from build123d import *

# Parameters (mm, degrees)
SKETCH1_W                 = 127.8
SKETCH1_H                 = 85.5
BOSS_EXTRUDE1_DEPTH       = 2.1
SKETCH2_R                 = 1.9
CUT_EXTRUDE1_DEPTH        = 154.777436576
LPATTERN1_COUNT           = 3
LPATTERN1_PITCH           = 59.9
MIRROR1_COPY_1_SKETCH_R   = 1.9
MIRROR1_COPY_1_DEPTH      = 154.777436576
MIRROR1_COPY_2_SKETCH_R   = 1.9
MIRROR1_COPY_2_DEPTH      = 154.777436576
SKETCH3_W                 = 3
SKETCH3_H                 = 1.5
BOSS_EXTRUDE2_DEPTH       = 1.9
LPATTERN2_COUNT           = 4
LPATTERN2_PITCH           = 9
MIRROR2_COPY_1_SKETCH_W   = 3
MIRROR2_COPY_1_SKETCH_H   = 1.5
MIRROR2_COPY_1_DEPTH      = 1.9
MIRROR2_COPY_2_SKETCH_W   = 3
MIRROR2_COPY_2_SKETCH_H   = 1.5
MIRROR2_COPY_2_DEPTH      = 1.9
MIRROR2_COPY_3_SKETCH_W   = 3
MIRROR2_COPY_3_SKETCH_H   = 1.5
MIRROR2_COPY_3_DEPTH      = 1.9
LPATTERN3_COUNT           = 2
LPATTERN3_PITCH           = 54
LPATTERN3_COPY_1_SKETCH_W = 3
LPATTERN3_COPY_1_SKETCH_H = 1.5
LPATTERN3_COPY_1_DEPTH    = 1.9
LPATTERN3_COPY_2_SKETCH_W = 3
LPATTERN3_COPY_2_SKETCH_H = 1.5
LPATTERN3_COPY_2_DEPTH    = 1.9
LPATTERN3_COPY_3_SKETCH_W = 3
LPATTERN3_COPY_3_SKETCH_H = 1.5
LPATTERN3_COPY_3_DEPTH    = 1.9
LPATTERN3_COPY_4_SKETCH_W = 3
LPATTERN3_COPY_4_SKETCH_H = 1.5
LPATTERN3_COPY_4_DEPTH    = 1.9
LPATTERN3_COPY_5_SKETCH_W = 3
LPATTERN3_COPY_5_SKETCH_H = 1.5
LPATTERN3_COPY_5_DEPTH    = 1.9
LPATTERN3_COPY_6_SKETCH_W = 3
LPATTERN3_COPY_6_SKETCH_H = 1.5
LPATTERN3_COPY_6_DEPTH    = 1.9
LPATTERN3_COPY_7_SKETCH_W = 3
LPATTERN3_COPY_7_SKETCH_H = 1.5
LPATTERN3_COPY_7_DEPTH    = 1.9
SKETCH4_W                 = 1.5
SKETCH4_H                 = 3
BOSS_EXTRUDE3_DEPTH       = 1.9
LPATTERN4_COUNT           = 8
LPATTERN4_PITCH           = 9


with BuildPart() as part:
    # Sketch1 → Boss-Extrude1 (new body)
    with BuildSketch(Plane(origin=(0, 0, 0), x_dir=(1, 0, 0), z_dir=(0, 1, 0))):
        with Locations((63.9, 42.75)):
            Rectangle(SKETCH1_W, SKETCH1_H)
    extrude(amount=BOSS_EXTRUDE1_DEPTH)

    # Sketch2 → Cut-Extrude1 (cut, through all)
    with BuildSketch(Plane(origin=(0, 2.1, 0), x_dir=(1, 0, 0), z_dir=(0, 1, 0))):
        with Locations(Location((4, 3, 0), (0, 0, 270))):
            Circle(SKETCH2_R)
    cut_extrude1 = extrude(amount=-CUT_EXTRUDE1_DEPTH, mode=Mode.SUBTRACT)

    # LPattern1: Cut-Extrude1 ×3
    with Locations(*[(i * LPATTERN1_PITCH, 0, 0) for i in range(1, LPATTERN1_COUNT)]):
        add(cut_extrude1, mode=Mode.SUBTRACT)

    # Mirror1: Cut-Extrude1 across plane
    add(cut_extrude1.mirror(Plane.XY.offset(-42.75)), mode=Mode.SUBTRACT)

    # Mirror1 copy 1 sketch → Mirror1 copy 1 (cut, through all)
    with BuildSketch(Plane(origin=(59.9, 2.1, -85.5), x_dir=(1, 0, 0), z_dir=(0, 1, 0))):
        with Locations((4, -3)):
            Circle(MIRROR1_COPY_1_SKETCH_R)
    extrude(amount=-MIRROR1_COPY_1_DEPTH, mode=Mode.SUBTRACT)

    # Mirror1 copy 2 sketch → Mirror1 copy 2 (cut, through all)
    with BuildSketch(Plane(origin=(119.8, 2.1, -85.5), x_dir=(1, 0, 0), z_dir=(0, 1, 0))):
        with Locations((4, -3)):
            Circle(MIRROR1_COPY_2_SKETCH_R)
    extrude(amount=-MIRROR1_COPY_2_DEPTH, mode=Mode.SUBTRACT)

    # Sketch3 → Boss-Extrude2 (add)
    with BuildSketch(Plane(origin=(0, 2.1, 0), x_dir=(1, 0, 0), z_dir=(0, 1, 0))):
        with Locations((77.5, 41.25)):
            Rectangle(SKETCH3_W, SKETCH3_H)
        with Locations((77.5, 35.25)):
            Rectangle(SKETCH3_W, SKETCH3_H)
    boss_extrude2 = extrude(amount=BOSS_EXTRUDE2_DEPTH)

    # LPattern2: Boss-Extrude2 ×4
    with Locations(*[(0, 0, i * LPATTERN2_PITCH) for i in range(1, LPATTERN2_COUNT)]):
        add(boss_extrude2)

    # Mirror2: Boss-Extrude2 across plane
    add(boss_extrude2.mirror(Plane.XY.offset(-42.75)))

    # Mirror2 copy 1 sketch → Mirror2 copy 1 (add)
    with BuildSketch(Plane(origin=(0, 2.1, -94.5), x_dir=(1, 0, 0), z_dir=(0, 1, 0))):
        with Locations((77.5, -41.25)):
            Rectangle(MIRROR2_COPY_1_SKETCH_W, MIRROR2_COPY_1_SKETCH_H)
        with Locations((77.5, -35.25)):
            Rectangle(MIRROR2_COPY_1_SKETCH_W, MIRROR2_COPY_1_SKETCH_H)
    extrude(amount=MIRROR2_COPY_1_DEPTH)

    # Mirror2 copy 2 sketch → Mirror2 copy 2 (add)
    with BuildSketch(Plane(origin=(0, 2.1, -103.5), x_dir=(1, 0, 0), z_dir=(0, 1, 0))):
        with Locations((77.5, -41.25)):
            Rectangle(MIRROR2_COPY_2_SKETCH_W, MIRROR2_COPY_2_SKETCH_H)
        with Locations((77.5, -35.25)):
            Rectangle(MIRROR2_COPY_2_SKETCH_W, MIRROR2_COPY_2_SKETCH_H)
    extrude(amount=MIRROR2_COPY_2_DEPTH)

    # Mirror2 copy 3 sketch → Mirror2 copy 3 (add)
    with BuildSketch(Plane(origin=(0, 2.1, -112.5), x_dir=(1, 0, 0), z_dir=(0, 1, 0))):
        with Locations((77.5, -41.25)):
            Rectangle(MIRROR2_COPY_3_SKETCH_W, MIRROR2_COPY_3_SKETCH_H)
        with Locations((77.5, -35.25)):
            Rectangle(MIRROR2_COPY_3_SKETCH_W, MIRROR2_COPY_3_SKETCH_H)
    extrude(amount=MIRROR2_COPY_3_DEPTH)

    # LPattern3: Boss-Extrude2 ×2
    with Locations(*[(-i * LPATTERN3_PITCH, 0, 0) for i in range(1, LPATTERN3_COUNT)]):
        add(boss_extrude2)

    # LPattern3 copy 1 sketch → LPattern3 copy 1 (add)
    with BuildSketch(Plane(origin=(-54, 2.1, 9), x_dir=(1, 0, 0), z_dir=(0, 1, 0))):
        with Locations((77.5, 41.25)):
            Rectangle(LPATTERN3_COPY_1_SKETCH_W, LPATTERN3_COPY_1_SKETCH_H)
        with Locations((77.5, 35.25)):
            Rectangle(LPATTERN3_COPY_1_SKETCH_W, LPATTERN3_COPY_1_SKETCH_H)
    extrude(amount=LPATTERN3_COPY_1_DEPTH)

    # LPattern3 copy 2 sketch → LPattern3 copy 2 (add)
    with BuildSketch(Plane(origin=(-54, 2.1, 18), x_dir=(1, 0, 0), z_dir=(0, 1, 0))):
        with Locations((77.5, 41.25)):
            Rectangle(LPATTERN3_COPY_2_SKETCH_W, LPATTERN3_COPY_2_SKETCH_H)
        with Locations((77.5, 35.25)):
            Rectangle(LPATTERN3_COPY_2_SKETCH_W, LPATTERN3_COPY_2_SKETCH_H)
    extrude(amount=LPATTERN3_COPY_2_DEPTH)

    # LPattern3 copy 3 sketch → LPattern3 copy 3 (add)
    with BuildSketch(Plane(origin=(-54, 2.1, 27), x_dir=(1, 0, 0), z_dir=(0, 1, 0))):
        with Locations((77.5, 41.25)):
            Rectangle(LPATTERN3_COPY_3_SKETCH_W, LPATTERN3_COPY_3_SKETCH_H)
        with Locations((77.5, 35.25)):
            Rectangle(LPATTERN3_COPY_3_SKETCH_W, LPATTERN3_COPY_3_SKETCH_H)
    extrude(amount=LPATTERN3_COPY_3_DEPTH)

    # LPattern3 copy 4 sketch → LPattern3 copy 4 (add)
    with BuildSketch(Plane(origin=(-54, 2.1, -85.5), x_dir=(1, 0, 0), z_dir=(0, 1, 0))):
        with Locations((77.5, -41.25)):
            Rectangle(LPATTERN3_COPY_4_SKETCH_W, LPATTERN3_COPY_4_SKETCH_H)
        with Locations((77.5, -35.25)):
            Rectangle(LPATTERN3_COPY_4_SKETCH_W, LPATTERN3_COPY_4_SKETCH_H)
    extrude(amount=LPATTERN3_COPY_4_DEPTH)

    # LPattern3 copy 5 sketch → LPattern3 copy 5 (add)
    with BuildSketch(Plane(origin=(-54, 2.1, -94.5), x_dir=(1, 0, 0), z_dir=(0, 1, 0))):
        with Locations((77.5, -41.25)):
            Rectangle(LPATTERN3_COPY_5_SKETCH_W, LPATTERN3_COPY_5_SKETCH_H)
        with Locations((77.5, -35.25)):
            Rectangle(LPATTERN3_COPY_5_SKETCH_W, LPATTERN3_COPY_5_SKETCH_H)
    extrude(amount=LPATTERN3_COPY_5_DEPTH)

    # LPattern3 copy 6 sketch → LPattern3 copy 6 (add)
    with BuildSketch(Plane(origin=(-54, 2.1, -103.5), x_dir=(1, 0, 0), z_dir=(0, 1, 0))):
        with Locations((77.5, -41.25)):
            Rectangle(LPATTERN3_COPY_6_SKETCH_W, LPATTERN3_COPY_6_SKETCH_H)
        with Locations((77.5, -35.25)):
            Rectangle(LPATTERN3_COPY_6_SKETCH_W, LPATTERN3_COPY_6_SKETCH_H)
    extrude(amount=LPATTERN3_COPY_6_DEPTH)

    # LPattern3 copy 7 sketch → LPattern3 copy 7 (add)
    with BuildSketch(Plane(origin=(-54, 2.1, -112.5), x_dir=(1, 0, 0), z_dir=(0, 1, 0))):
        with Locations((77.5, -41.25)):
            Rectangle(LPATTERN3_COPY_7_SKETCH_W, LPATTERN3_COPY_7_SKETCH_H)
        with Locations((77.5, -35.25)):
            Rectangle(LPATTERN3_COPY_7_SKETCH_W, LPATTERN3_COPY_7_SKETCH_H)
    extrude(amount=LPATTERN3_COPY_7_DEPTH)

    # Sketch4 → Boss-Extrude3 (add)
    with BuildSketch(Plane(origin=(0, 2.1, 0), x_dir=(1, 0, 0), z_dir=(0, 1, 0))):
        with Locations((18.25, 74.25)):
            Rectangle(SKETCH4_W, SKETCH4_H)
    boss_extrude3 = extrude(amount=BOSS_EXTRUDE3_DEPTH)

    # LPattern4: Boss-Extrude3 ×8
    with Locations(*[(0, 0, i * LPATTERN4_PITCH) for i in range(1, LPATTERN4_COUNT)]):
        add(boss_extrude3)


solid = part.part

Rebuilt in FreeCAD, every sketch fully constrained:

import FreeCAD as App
import Part
import Sketcher


def add_polygon(sketch, points):
    """Adds a closed chain of lines whose ends are joined by coincident constraints."""
    first, n = sketch.GeometryCount, len(points)
    for a, b in zip(points, points[1:] + points[:1]):
        sketch.addGeometry(Part.LineSegment(App.Vector(*a, 0), App.Vector(*b, 0)), False)
    for i in range(n):
        sketch.addConstraint(Sketcher.Constraint("Coincident", first + i, 2, first + (i + 1) % n, 1))

doc = App.newDocument("Part")
body = doc.addObject("PartDesign::Body", "Body")

# Sketch on XZ plane
sketch1 = body.newObject("Sketcher::SketchObject", "Sketch")
sketch1.AttachmentSupport = (doc.getObject("XZ_Plane"), [""])
sketch1.MapMode = "FlatFace"
add_polygon(sketch1, [(0, -86), (0, 0), (128, 0), (128, -86)])  # lines 0-3
sketch1.addConstraint([
    Sketcher.Constraint("Vertical", 0),
    Sketcher.Constraint("Horizontal", 1),
    Sketcher.Constraint("Vertical", 2),
    Sketcher.Constraint("Horizontal", 3),
    Sketcher.Constraint("Coincident", 0, 2, -1, 1),
    Sketcher.Constraint("DistanceX", 1, 1, 1, 2, 127.8),
    Sketcher.Constraint("DistanceY", 0, 1, 0, 2, 85.5),
])
pad1 = body.newObject("PartDesign::Pad", "Pad")
pad1.Profile = sketch1
pad1.Length = 2.1
pad1.Reversed = True

# Sketch on XZ plane
sketch2 = body.newObject("Sketcher::SketchObject", "Sketch001")
sketch2.AttachmentSupport = (doc.getObject("XZ_Plane"), [""])
sketch2.MapMode = "FlatFace"
sketch2.AttachmentOffset = App.Placement(App.Vector(0, 0, -2.1), App.Rotation())
sketch2.addGeometry(Part.Circle(App.Vector(4, -3, 0), App.Vector(0, 0, 1), 1.9), False)
sketch2.addConstraint([
    Sketcher.Constraint("Diameter", 0, 3.8),
    Sketcher.Constraint("DistanceX", -1, 1, 0, 3, 4.0),
    Sketcher.Constraint("DistanceY", 0, 3, -1, 1, 3.0),
])
pocket1 = body.newObject("PartDesign::Pocket", "Pocket")
pocket1.Profile = sketch2
pocket1.Type = "ThroughAll"
pocket1.Reversed = True
doc.recompute()

linearpattern = body.newObject("PartDesign::LinearPattern", "LinearPattern")
linearpattern.Originals = [pocket1]
linearpattern.Direction = (doc.getObject("X_Axis"), [""])
linearpattern.Mode = "offset"
linearpattern.Offset = 59.9
linearpattern.Occurrences = 3
body.Tip = linearpattern
doc.recompute()

datumplane = body.newObject("PartDesign::Plane", "DatumPlane")
datumplane.AttachmentSupport = (doc.getObject("XY_Plane"), [""])
datumplane.MapMode = "FlatFace"
datumplane.AttachmentOffset = App.Placement(App.Vector(0, 0, -42.75), App.Rotation())
mirrored = body.newObject("PartDesign::Mirrored", "Mirrored")
mirrored.Originals = [pocket1]
mirrored.MirrorPlane = (datumplane, [""])
body.Tip = mirrored

# Sketch on XZ plane
sketch3 = body.newObject("Sketcher::SketchObject", "Sketch002")
sketch3.AttachmentSupport = (doc.getObject("XZ_Plane"), [""])
sketch3.MapMode = "FlatFace"
sketch3.AttachmentOffset = App.Placement(App.Vector(0, 0, -2.1), App.Rotation())
sketch3.addGeometry(Part.Circle(App.Vector(63.9, -82.5, 0), App.Vector(0, 0, 1), 1.9), False)
sketch3.addConstraint([
    Sketcher.Constraint("Diameter", 0, 3.8),
    Sketcher.Constraint("DistanceX", -1, 1, 0, 3, 63.9),
    Sketcher.Constraint("DistanceY", 0, 3, -1, 1, 82.5),
])
pocket2 = body.newObject("PartDesign::Pocket", "Pocket001")
pocket2.Profile = sketch3
pocket2.Type = "ThroughAll"
pocket2.Reversed = True

# Sketch on XZ plane
sketch4 = body.newObject("Sketcher::SketchObject", "Sketch003")
sketch4.AttachmentSupport = (doc.getObject("XZ_Plane"), [""])
sketch4.MapMode = "FlatFace"
sketch4.AttachmentOffset = App.Placement(App.Vector(0, 0, -2.1), App.Rotation())
sketch4.addGeometry(Part.Circle(App.Vector(123.8, -82.5, 0), App.Vector(0, 0, 1), 1.9), False)
sketch4.addConstraint([
    Sketcher.Constraint("Diameter", 0, 3.8),
    Sketcher.Constraint("DistanceX", -1, 1, 0, 3, 123.8),
    Sketcher.Constraint("DistanceY", 0, 3, -1, 1, 82.5),
])
pocket3 = body.newObject("PartDesign::Pocket", "Pocket002")
pocket3.Profile = sketch4
pocket3.Type = "ThroughAll"
pocket3.Reversed = True

# Sketch on XZ plane
sketch5 = body.newObject("Sketcher::SketchObject", "Sketch004")
sketch5.AttachmentSupport = (doc.getObject("XZ_Plane"), [""])
sketch5.MapMode = "FlatFace"
sketch5.AttachmentOffset = App.Placement(App.Vector(0, 0, -2.1), App.Rotation())
add_polygon(sketch5, [(76, -42), (76, -40.5), (79, -40.5), (79, -42)])  # lines 0-3
add_polygon(sketch5, [(76, -36), (76, -34.5), (79, -34.5), (79, -36)])  # lines 4-7
sketch5.addConstraint([
    Sketcher.Constraint("Vertical", 0),
    Sketcher.Constraint("Horizontal", 1),
    Sketcher.Constraint("Vertical", 2),
    Sketcher.Constraint("Horizontal", 3),
    Sketcher.Constraint("Vertical", 4),
    Sketcher.Constraint("Horizontal", 5),
    Sketcher.Constraint("Vertical", 6),
    Sketcher.Constraint("Horizontal", 7),
    Sketcher.Constraint("Vertical", 3, 2, 4, 2),
    Sketcher.Constraint("Vertical", 2, 2, 5, 2),
    Sketcher.Constraint("Equal", 2, 4),
    Sketcher.Constraint("DistanceX", 1, 1, 1, 2, 3.0),
    Sketcher.Constraint("DistanceY", 0, 1, 0, 2, 1.5),
    Sketcher.Constraint("DistanceX", -1, 1, 0, 2, 76.0),
    Sketcher.Constraint("DistanceY", 2, 2, -1, 1, 42.0),
    Sketcher.Constraint("DistanceY", 6, 2, -1, 1, 36.0),
])
pad2 = body.newObject("PartDesign::Pad", "Pad001")
pad2.Profile = sketch5
pad2.Length = 1.9
pad2.Reversed = True
doc.recompute()

linearpattern2 = body.newObject("PartDesign::LinearPattern", "LinearPattern001")
linearpattern2.Originals = [pad2]
linearpattern2.Direction = (doc.getObject("Z_Axis"), [""])
linearpattern2.Mode = "offset"
linearpattern2.Offset = 9
linearpattern2.Occurrences = 4
body.Tip = linearpattern2
doc.recompute()

datumplane2 = body.newObject("PartDesign::Plane", "DatumPlane001")
datumplane2.AttachmentSupport = (doc.getObject("XY_Plane"), [""])
datumplane2.MapMode = "FlatFace"
datumplane2.AttachmentOffset = App.Placement(App.Vector(0, 0, -42.75), App.Rotation())
mirrored2 = body.newObject("PartDesign::Mirrored", "Mirrored001")
mirrored2.Originals = [pad2]
mirrored2.MirrorPlane = (datumplane2, [""])
body.Tip = mirrored2

# Sketch on XZ plane
sketch6 = body.newObject("Sketcher::SketchObject", "Sketch005")
sketch6.AttachmentSupport = (doc.getObject("XZ_Plane"), [""])
sketch6.MapMode = "FlatFace"
sketch6.AttachmentOffset = App.Placement(App.Vector(0, 0, -2.1), App.Rotation())
add_polygon(sketch6, [(76, -54), (76, -52.5), (79, -52.5), (79, -54)])  # lines 0-3
add_polygon(sketch6, [(76, -60), (76, -58.5), (79, -58.5), (79, -60)])  # lines 4-7
sketch6.addConstraint([
    Sketcher.Constraint("Vertical", 0),
    Sketcher.Constraint("Horizontal", 1),
    Sketcher.Constraint("Vertical", 2),
    Sketcher.Constraint("Horizontal", 3),
    Sketcher.Constraint("Vertical", 4),
    Sketcher.Constraint("Horizontal", 5),
    Sketcher.Constraint("Vertical", 6),
    Sketcher.Constraint("Horizontal", 7),
    Sketcher.Constraint("Vertical", 3, 2, 4, 2),
    Sketcher.Constraint("Vertical", 2, 2, 5, 2),
    Sketcher.Constraint("Equal", 2, 4),
    Sketcher.Constraint("DistanceX", 1, 1, 1, 2, 3.0),
    Sketcher.Constraint("DistanceY", 0, 1, 0, 2, 1.5),
    Sketcher.Constraint("DistanceX", -1, 1, 0, 2, 76.0),
    Sketcher.Constraint("DistanceY", 2, 2, -1, 1, 54.0),
    Sketcher.Constraint("DistanceY", 6, 2, -1, 1, 60.0),
])
pad3 = body.newObject("PartDesign::Pad", "Pad002")
pad3.Profile = sketch6
pad3.Length = 1.9
pad3.Reversed = True

# Sketch on XZ plane
sketch7 = body.newObject("Sketcher::SketchObject", "Sketch006")
sketch7.AttachmentSupport = (doc.getObject("XZ_Plane"), [""])
sketch7.MapMode = "FlatFace"
sketch7.AttachmentOffset = App.Placement(App.Vector(0, 0, -2.1), App.Rotation())
add_polygon(sketch7, [(76, -63), (76, -61.5), (79, -61.5), (79, -63)])  # lines 0-3
add_polygon(sketch7, [(76, -69), (76, -67.5), (79, -67.5), (79, -69)])  # lines 4-7
sketch7.addConstraint([
    Sketcher.Constraint("Vertical", 0),
    Sketcher.Constraint("Horizontal", 1),
    Sketcher.Constraint("Vertical", 2),
    Sketcher.Constraint("Horizontal", 3),
    Sketcher.Constraint("Vertical", 4),
    Sketcher.Constraint("Horizontal", 5),
    Sketcher.Constraint("Vertical", 6),
    Sketcher.Constraint("Horizontal", 7),
    Sketcher.Constraint("Vertical", 3, 2, 4, 2),
    Sketcher.Constraint("Vertical", 2, 2, 5, 2),
    Sketcher.Constraint("Equal", 2, 4),
    Sketcher.Constraint("DistanceX", 1, 1, 1, 2, 3.0),
    Sketcher.Constraint("DistanceY", 0, 1, 0, 2, 1.5),
    Sketcher.Constraint("DistanceX", -1, 1, 0, 2, 76.0),
    Sketcher.Constraint("DistanceY", 2, 2, -1, 1, 63.0),
    Sketcher.Constraint("DistanceY", 6, 2, -1, 1, 69.0),
])
pad4 = body.newObject("PartDesign::Pad", "Pad003")
pad4.Profile = sketch7
pad4.Length = 1.9
pad4.Reversed = True

# Sketch on XZ plane
sketch8 = body.newObject("Sketcher::SketchObject", "Sketch007")
sketch8.AttachmentSupport = (doc.getObject("XZ_Plane"), [""])
sketch8.MapMode = "FlatFace"
sketch8.AttachmentOffset = App.Placement(App.Vector(0, 0, -2.1), App.Rotation())
add_polygon(sketch8, [(76, -72), (76, -70.5), (79, -70.5), (79, -72)])  # lines 0-3
add_polygon(sketch8, [(76, -78), (76, -76.5), (79, -76.5), (79, -78)])  # lines 4-7
sketch8.addConstraint([
    Sketcher.Constraint("Vertical", 0),
    Sketcher.Constraint("Horizontal", 1),
    Sketcher.Constraint("Vertical", 2),
    Sketcher.Constraint("Horizontal", 3),
    Sketcher.Constraint("Vertical", 4),
    Sketcher.Constraint("Horizontal", 5),
    Sketcher.Constraint("Vertical", 6),
    Sketcher.Constraint("Horizontal", 7),
    Sketcher.Constraint("Vertical", 3, 2, 4, 2),
    Sketcher.Constraint("Vertical", 2, 2, 5, 2),
    Sketcher.Constraint("Equal", 2, 4),
    Sketcher.Constraint("DistanceX", 1, 1, 1, 2, 3.0),
    Sketcher.Constraint("DistanceY", 0, 1, 0, 2, 1.5),
    Sketcher.Constraint("DistanceX", -1, 1, 0, 2, 76.0),
    Sketcher.Constraint("DistanceY", 2, 2, -1, 1, 72.0),
    Sketcher.Constraint("DistanceY", 6, 2, -1, 1, 78.0),
])
pad5 = body.newObject("PartDesign::Pad", "Pad004")
pad5.Profile = sketch8
pad5.Length = 1.9
pad5.Reversed = True
doc.recompute()

linearpattern3 = body.newObject("PartDesign::LinearPattern", "LinearPattern002")
linearpattern3.Originals = [pad2]
linearpattern3.Direction = (doc.getObject("X_Axis"), [""])
linearpattern3.Mode = "offset"
linearpattern3.Offset = 54
linearpattern3.Occurrences = 2
linearpattern3.Reversed = True
body.Tip = linearpattern3

# Sketch on XZ plane
sketch9 = body.newObject("Sketcher::SketchObject", "Sketch008")
sketch9.AttachmentSupport = (doc.getObject("XZ_Plane"), [""])
sketch9.MapMode = "FlatFace"
sketch9.AttachmentOffset = App.Placement(App.Vector(0, 0, -2.1), App.Rotation())
add_polygon(sketch9, [(22, -33), (22, -31.5), (25, -31.5), (25, -33)])  # lines 0-3
add_polygon(sketch9, [(22, -27), (22, -25.5), (25, -25.5), (25, -27)])  # lines 4-7
sketch9.addConstraint([
    Sketcher.Constraint("Vertical", 0),
    Sketcher.Constraint("Horizontal", 1),
    Sketcher.Constraint("Vertical", 2),
    Sketcher.Constraint("Horizontal", 3),
    Sketcher.Constraint("Vertical", 4),
    Sketcher.Constraint("Horizontal", 5),
    Sketcher.Constraint("Vertical", 6),
    Sketcher.Constraint("Horizontal", 7),
    Sketcher.Constraint("Vertical", 3, 2, 4, 2),
    Sketcher.Constraint("Vertical", 2, 2, 5, 2),
    Sketcher.Constraint("Equal", 2, 4),
    Sketcher.Constraint("DistanceX", 1, 1, 1, 2, 3.0),
    Sketcher.Constraint("DistanceY", 0, 1, 0, 2, 1.5),
    Sketcher.Constraint("DistanceX", -1, 1, 0, 2, 22.0),
    Sketcher.Constraint("DistanceY", 2, 2, -1, 1, 33.0),
    Sketcher.Constraint("DistanceY", 6, 2, -1, 1, 27.0),
])
pad6 = body.newObject("PartDesign::Pad", "Pad005")
pad6.Profile = sketch9
pad6.Length = 1.9
pad6.Reversed = True

# Sketch on XZ plane
sketch10 = body.newObject("Sketcher::SketchObject", "Sketch009")
sketch10.AttachmentSupport = (doc.getObject("XZ_Plane"), [""])
sketch10.MapMode = "FlatFace"
sketch10.AttachmentOffset = App.Placement(App.Vector(0, 0, -2.1), App.Rotation())
add_polygon(sketch10, [(22, -24), (22, -22.5), (25, -22.5), (25, -24)])  # lines 0-3
add_polygon(sketch10, [(22, -18), (22, -16.5), (25, -16.5), (25, -18)])  # lines 4-7
sketch10.addConstraint([
    Sketcher.Constraint("Vertical", 0),
    Sketcher.Constraint("Horizontal", 1),
    Sketcher.Constraint("Vertical", 2),
    Sketcher.Constraint("Horizontal", 3),
    Sketcher.Constraint("Vertical", 4),
    Sketcher.Constraint("Horizontal", 5),
    Sketcher.Constraint("Vertical", 6),
    Sketcher.Constraint("Horizontal", 7),
    Sketcher.Constraint("Vertical", 3, 2, 4, 2),
    Sketcher.Constraint("Vertical", 2, 2, 5, 2),
    Sketcher.Constraint("Equal", 2, 4),
    Sketcher.Constraint("DistanceX", 1, 1, 1, 2, 3.0),
    Sketcher.Constraint("DistanceY", 0, 1, 0, 2, 1.5),
    Sketcher.Constraint("DistanceX", -1, 1, 0, 2, 22.0),
    Sketcher.Constraint("DistanceY", 2, 2, -1, 1, 24.0),
    Sketcher.Constraint("DistanceY", 6, 2, -1, 1, 18.0),
])
pad7 = body.newObject("PartDesign::Pad", "Pad006")
pad7.Profile = sketch10
pad7.Length = 1.9
pad7.Reversed = True

# Sketch on XZ plane
sketch11 = body.newObject("Sketcher::SketchObject", "Sketch010")
sketch11.AttachmentSupport = (doc.getObject("XZ_Plane"), [""])
sketch11.MapMode = "FlatFace"
sketch11.AttachmentOffset = App.Placement(App.Vector(0, 0, -2.1), App.Rotation())
add_polygon(sketch11, [(22, -15), (22, -13.5), (25, -13.5), (25, -15)])  # lines 0-3
add_polygon(sketch11, [(22, -9), (22, -7.5), (25, -7.5), (25, -9)])  # lines 4-7
sketch11.addConstraint([
    Sketcher.Constraint("Vertical", 0),
    Sketcher.Constraint("Horizontal", 1),
    Sketcher.Constraint("Vertical", 2),
    Sketcher.Constraint("Horizontal", 3),
    Sketcher.Constraint("Vertical", 4),
    Sketcher.Constraint("Horizontal", 5),
    Sketcher.Constraint("Vertical", 6),
    Sketcher.Constraint("Horizontal", 7),
    Sketcher.Constraint("Vertical", 3, 2, 4, 2),
    Sketcher.Constraint("Vertical", 2, 2, 5, 2),
    Sketcher.Constraint("Equal", 2, 4),
    Sketcher.Constraint("DistanceX", 1, 1, 1, 2, 3.0),
    Sketcher.Constraint("DistanceY", 0, 1, 0, 2, 1.5),
    Sketcher.Constraint("DistanceX", -1, 1, 0, 2, 22.0),
    Sketcher.Constraint("DistanceY", 2, 2, -1, 1, 15.0),
    Sketcher.Constraint("DistanceY", 6, 2, -1, 1, 9.0),
])
pad8 = body.newObject("PartDesign::Pad", "Pad007")
pad8.Profile = sketch11
pad8.Length = 1.9
pad8.Reversed = True

# Sketch on XZ plane
sketch12 = body.newObject("Sketcher::SketchObject", "Sketch011")
sketch12.AttachmentSupport = (doc.getObject("XZ_Plane"), [""])
sketch12.MapMode = "FlatFace"
sketch12.AttachmentOffset = App.Placement(App.Vector(0, 0, -2.1), App.Rotation())
add_polygon(sketch12, [(22, -45), (22, -43.5), (25, -43.5), (25, -45)])  # lines 0-3
add_polygon(sketch12, [(22, -51), (22, -49.5), (25, -49.5), (25, -51)])  # lines 4-7
sketch12.addConstraint([
    Sketcher.Constraint("Vertical", 0),
    Sketcher.Constraint("Horizontal", 1),
    Sketcher.Constraint("Vertical", 2),
    Sketcher.Constraint("Horizontal", 3),
    Sketcher.Constraint("Vertical", 4),
    Sketcher.Constraint("Horizontal", 5),
    Sketcher.Constraint("Vertical", 6),
    Sketcher.Constraint("Horizontal", 7),
    Sketcher.Constraint("Vertical", 3, 2, 4, 2),
    Sketcher.Constraint("Vertical", 2, 2, 5, 2),
    Sketcher.Constraint("Equal", 2, 4),
    Sketcher.Constraint("DistanceX", 1, 1, 1, 2, 3.0),
    Sketcher.Constraint("DistanceY", 0, 1, 0, 2, 1.5),
    Sketcher.Constraint("DistanceX", -1, 1, 0, 2, 22.0),
    Sketcher.Constraint("DistanceY", 2, 2, -1, 1, 45.0),
    Sketcher.Constraint("DistanceY", 6, 2, -1, 1, 51.0),
])
pad9 = body.newObject("PartDesign::Pad", "Pad008")
pad9.Profile = sketch12
pad9.Length = 1.9
pad9.Reversed = True

# Sketch on XZ plane
sketch13 = body.newObject("Sketcher::SketchObject", "Sketch012")
sketch13.AttachmentSupport = (doc.getObject("XZ_Plane"), [""])
sketch13.MapMode = "FlatFace"
sketch13.AttachmentOffset = App.Placement(App.Vector(0, 0, -2.1), App.Rotation())
add_polygon(sketch13, [(22, -54), (22, -52.5), (25, -52.5), (25, -54)])  # lines 0-3
add_polygon(sketch13, [(22, -60), (22, -58.5), (25, -58.5), (25, -60)])  # lines 4-7
sketch13.addConstraint([
    Sketcher.Constraint("Vertical", 0),
    Sketcher.Constraint("Horizontal", 1),
    Sketcher.Constraint("Vertical", 2),
    Sketcher.Constraint("Horizontal", 3),
    Sketcher.Constraint("Vertical", 4),
    Sketcher.Constraint("Horizontal", 5),
    Sketcher.Constraint("Vertical", 6),
    Sketcher.Constraint("Horizontal", 7),
    Sketcher.Constraint("Vertical", 3, 2, 4, 2),
    Sketcher.Constraint("Vertical", 2, 2, 5, 2),
    Sketcher.Constraint("Equal", 2, 4),
    Sketcher.Constraint("DistanceX", 1, 1, 1, 2, 3.0),
    Sketcher.Constraint("DistanceY", 0, 1, 0, 2, 1.5),
    Sketcher.Constraint("DistanceX", -1, 1, 0, 2, 22.0),
    Sketcher.Constraint("DistanceY", 2, 2, -1, 1, 54.0),
    Sketcher.Constraint("DistanceY", 6, 2, -1, 1, 60.0),
])
pad10 = body.newObject("PartDesign::Pad", "Pad009")
pad10.Profile = sketch13
pad10.Length = 1.9
pad10.Reversed = True

# Sketch on XZ plane
sketch14 = body.newObject("Sketcher::SketchObject", "Sketch013")
sketch14.AttachmentSupport = (doc.getObject("XZ_Plane"), [""])
sketch14.MapMode = "FlatFace"
sketch14.AttachmentOffset = App.Placement(App.Vector(0, 0, -2.1), App.Rotation())
add_polygon(sketch14, [(22, -63), (22, -61.5), (25, -61.5), (25, -63)])  # lines 0-3
add_polygon(sketch14, [(22, -69), (22, -67.5), (25, -67.5), (25, -69)])  # lines 4-7
sketch14.addConstraint([
    Sketcher.Constraint("Vertical", 0),
    Sketcher.Constraint("Horizontal", 1),
    Sketcher.Constraint("Vertical", 2),
    Sketcher.Constraint("Horizontal", 3),
    Sketcher.Constraint("Vertical", 4),
    Sketcher.Constraint("Horizontal", 5),
    Sketcher.Constraint("Vertical", 6),
    Sketcher.Constraint("Horizontal", 7),
    Sketcher.Constraint("Vertical", 3, 2, 4, 2),
    Sketcher.Constraint("Vertical", 2, 2, 5, 2),
    Sketcher.Constraint("Equal", 2, 4),
    Sketcher.Constraint("DistanceX", 1, 1, 1, 2, 3.0),
    Sketcher.Constraint("DistanceY", 0, 1, 0, 2, 1.5),
    Sketcher.Constraint("DistanceX", -1, 1, 0, 2, 22.0),
    Sketcher.Constraint("DistanceY", 2, 2, -1, 1, 63.0),
    Sketcher.Constraint("DistanceY", 6, 2, -1, 1, 69.0),
])
pad11 = body.newObject("PartDesign::Pad", "Pad010")
pad11.Profile = sketch14
pad11.Length = 1.9
pad11.Reversed = True

# Sketch on XZ plane
sketch15 = body.newObject("Sketcher::SketchObject", "Sketch014")
sketch15.AttachmentSupport = (doc.getObject("XZ_Plane"), [""])
sketch15.MapMode = "FlatFace"
sketch15.AttachmentOffset = App.Placement(App.Vector(0, 0, -2.1), App.Rotation())
add_polygon(sketch15, [(22, -72), (22, -70.5), (25, -70.5), (25, -72)])  # lines 0-3
add_polygon(sketch15, [(22, -78), (22, -76.5), (25, -76.5), (25, -78)])  # lines 4-7
sketch15.addConstraint([
    Sketcher.Constraint("Vertical", 0),
    Sketcher.Constraint("Horizontal", 1),
    Sketcher.Constraint("Vertical", 2),
    Sketcher.Constraint("Horizontal", 3),
    Sketcher.Constraint("Vertical", 4),
    Sketcher.Constraint("Horizontal", 5),
    Sketcher.Constraint("Vertical", 6),
    Sketcher.Constraint("Horizontal", 7),
    Sketcher.Constraint("Vertical", 3, 2, 4, 2),
    Sketcher.Constraint("Vertical", 2, 2, 5, 2),
    Sketcher.Constraint("Equal", 2, 4),
    Sketcher.Constraint("DistanceX", 1, 1, 1, 2, 3.0),
    Sketcher.Constraint("DistanceY", 0, 1, 0, 2, 1.5),
    Sketcher.Constraint("DistanceX", -1, 1, 0, 2, 22.0),
    Sketcher.Constraint("DistanceY", 2, 2, -1, 1, 72.0),
    Sketcher.Constraint("DistanceY", 6, 2, -1, 1, 78.0),
])
pad12 = body.newObject("PartDesign::Pad", "Pad011")
pad12.Profile = sketch15
pad12.Length = 1.9
pad12.Reversed = True

# Sketch on XZ plane
sketch16 = body.newObject("Sketcher::SketchObject", "Sketch015")
sketch16.AttachmentSupport = (doc.getObject("XZ_Plane"), [""])
sketch16.MapMode = "FlatFace"
sketch16.AttachmentOffset = App.Placement(App.Vector(0, 0, -2.1), App.Rotation())
add_polygon(sketch16, [(17.5, -75.8), (17.5, -72.8), (19, -72.8), (19, -75.8)])  # lines 0-3
sketch16.addConstraint([
    Sketcher.Constraint("Vertical", 0),
    Sketcher.Constraint("Horizontal", 1),
    Sketcher.Constraint("Vertical", 2),
    Sketcher.Constraint("Horizontal", 3),
    Sketcher.Constraint("DistanceY", 0, 1, 0, 2, 3.0),
    Sketcher.Constraint("DistanceX", 1, 1, 1, 2, 1.5),
    Sketcher.Constraint("DistanceX", -1, 1, 1, 2, 19.0),
    Sketcher.Constraint("DistanceY", 0, 2, -1, 1, 72.75),
])
pad13 = body.newObject("PartDesign::Pad", "Pad012")
pad13.Profile = sketch16
pad13.Length = 1.9
pad13.Reversed = True
doc.recompute()

linearpattern4 = body.newObject("PartDesign::LinearPattern", "LinearPattern003")
linearpattern4.Originals = [pad13]
linearpattern4.Direction = (doc.getObject("Z_Axis"), [""])
linearpattern4.Mode = "offset"
linearpattern4.Offset = 9
linearpattern4.Occurrences = 8
body.Tip = linearpattern4

doc.recompute()
